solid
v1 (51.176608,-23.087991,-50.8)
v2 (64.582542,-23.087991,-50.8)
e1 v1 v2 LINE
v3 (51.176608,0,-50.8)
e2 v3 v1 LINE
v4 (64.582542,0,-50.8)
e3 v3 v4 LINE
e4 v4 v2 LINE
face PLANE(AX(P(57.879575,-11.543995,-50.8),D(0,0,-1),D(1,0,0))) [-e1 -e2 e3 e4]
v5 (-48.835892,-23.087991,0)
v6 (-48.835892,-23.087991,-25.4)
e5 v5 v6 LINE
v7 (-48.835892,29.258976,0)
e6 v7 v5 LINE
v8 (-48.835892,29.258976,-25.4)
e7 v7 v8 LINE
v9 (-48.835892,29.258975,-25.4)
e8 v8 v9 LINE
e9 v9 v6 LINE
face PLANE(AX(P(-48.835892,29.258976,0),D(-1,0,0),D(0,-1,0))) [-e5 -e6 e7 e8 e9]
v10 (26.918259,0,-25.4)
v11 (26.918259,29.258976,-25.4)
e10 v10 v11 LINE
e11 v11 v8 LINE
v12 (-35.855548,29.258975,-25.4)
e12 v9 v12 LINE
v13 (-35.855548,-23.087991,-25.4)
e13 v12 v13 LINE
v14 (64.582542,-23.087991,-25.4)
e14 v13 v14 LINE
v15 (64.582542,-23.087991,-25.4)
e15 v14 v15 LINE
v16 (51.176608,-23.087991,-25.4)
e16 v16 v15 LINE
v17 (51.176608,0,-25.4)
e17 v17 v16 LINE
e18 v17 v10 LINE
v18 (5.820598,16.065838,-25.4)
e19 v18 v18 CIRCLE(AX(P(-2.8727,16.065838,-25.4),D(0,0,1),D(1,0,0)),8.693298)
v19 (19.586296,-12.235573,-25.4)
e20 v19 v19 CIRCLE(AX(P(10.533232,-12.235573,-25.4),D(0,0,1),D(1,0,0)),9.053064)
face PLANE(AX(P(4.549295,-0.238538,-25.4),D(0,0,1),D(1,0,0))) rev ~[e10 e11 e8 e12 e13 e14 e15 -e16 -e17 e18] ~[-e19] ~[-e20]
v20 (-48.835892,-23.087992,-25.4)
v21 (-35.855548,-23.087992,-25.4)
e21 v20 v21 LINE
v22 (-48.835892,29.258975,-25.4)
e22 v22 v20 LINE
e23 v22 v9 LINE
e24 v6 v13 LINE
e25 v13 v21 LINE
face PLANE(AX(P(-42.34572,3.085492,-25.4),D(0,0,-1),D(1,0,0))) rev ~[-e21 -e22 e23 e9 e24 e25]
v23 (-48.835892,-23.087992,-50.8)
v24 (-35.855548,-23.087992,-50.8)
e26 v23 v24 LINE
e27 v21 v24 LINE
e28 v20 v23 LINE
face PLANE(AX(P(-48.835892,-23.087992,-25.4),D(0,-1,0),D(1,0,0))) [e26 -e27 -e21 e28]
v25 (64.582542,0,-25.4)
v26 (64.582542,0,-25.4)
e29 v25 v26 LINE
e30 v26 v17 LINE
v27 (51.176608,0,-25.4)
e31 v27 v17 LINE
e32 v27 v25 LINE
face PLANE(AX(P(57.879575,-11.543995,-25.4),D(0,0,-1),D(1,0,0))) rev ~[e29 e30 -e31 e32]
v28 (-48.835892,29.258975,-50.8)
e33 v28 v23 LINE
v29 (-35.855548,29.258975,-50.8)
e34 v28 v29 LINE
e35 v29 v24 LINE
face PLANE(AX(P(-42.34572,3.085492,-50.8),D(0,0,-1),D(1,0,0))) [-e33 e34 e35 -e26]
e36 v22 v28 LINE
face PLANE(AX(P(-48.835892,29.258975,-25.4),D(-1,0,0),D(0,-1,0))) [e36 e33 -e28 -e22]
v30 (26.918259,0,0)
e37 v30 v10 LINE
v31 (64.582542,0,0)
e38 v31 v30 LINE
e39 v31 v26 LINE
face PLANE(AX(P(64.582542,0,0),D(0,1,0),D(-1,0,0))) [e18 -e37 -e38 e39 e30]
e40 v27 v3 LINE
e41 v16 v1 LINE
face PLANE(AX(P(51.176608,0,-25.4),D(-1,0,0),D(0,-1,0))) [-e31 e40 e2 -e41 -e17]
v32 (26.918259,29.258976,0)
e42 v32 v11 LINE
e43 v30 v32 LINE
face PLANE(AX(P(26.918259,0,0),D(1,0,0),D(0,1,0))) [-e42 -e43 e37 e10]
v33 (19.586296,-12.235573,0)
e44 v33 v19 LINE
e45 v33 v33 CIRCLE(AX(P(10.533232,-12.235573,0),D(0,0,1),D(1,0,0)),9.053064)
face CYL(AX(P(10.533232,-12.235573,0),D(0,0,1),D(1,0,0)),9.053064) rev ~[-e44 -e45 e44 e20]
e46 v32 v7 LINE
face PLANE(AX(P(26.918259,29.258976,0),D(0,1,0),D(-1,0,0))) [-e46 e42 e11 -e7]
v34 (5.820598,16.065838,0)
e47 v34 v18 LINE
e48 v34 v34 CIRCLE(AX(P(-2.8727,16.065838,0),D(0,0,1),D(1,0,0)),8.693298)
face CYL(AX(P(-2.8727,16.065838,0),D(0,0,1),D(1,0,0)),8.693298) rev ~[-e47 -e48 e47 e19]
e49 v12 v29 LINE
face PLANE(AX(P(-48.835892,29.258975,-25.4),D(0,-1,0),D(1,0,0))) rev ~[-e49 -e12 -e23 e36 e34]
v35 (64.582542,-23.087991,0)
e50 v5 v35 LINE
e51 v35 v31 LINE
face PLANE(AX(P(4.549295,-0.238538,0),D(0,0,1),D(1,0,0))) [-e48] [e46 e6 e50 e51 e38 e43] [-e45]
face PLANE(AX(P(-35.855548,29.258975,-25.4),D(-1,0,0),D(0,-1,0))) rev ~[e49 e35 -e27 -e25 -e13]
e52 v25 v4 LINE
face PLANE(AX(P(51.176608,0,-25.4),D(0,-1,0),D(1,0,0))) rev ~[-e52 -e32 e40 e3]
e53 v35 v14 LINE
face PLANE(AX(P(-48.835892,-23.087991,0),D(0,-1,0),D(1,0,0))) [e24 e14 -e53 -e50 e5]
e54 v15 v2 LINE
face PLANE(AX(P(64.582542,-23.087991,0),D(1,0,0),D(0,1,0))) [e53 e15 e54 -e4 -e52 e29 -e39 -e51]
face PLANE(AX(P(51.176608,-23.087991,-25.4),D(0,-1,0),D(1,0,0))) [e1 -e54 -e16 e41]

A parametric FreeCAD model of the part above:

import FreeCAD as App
import Part
import Sketcher
from FreeCAD import Vector
Q = App.Units.Quantity


def add_polygon(sketch, points):
    """Adds a closed chain of lines whose ends are joined by coincident constraints."""
    first, n = sketch.GeometryCount, len(points)
    for a, b in zip(points, points[1:] + points[:1]):
        sketch.addGeometry(Part.LineSegment(App.Vector(*a, 0), App.Vector(*b, 0)), False)
    for i in range(n):
        sketch.addConstraint(Sketcher.Constraint("Coincident", first + i, 2, first + (i + 1) % n, 1))

doc = App.newDocument("Part")
body = doc.addObject("PartDesign::Body", "Body")

# Sketch on XY plane
sketch1 = body.newObject("Sketcher::SketchObject", "Sketch")
sketch1.AttachmentSupport = (doc.getObject("XY_Plane"), [""])
sketch1.MapMode = "FlatFace"
add_polygon(sketch1, [(27, 29), (-49, 29), (-49, -23), (65, -23), (65, 0), (27, 0)])  # lines 0-5
sketch1.addGeometry(Part.Circle(Vector(11, -12, 0), Vector(0, 0, 1), 9), False)  # 6
sketch1.addGeometry(Part.Circle(Vector(-3, 16, 0), Vector(0, 0, 1), 9), False)  # 7
sketch1.addConstraint(Sketcher.Constraint("Horizontal", 0))
sketch1.addConstraint(Sketcher.Constraint("Vertical", 1))
sketch1.addConstraint(Sketcher.Constraint("Horizontal", 2))
sketch1.addConstraint(Sketcher.Constraint("Vertical", 3))
sketch1.addConstraint(Sketcher.Constraint("Horizontal", 4))
sketch1.addConstraint(Sketcher.Constraint("Vertical", 5))
sketch1.addConstraint(Sketcher.Constraint("PointOnObject", 3, 2, -1))
sketch1.addConstraint(Sketcher.Constraint("Diameter", 6, Q("18.106128 mm")))
sketch1.addConstraint(Sketcher.Constraint("Diameter", 7, Q("17.386596 mm")))
sketch1.addConstraint(Sketcher.Constraint("DistanceX", 0, 2, 0, 1, Q("75.754151 mm")))
sketch1.addConstraint(Sketcher.Constraint("DistanceY", 3, 1, 3, 2, Q("23.087991 mm")))
sketch1.addConstraint(Sketcher.Constraint("DistanceX", 7, 3, -1, 1, Q("2.8727 mm")))
sketch1.addConstraint(Sketcher.Constraint("DistanceX", 2, 1, 2, 2, Q("113.418434 mm")))
sketch1.addConstraint(Sketcher.Constraint("DistanceY", 1, 2, 1, 1, Q("52.346967 mm")))
sketch1.addConstraint(Sketcher.Constraint("DistanceX", -1, 1, 4, 2, Q("26.918259 mm")))
sketch1.addConstraint(Sketcher.Constraint("DistanceY", 6, 3, 7, 3, Q("28.301411 mm")))
sketch1.addConstraint(Sketcher.Constraint("DistanceY", 7, 3, 0, 2, Q("13.193138 mm")))
sketch1.addConstraint(Sketcher.Constraint("DistanceX", 6, 3, 2, 2, Q("54.04931 mm")))
pad1 = body.newObject("PartDesign::Pad", "Pad")
pad1.Profile = sketch1
pad1.Length = Q("1 in")
pad1.Reversed = True

# Sketch on XY plane
sketch2 = body.newObject("Sketcher::SketchObject", "Sketch001")
sketch2.AttachmentSupport = (doc.getObject("XY_Plane"), [""])
sketch2.MapMode = "FlatFace"
sketch2.AttachmentOffset = App.Placement(Vector(0, 0, -1 * 25.4), App.Rotation())
add_polygon(sketch2, [(-49, -23), (-49, 29), (-36, 29), (-36, -23)])  # lines 0-3
add_polygon(sketch2, [(51, -23), (51, 0), (65, 0), (65, -23)])  # lines 4-7
sketch2.addConstraint(Sketcher.Constraint("Vertical", 0))
sketch2.addConstraint(Sketcher.Constraint("Horizontal", 1))
sketch2.addConstraint(Sketcher.Constraint("Vertical", 2))
sketch2.addConstraint(Sketcher.Constraint("Horizontal", 3))
sketch2.addConstraint(Sketcher.Constraint("Vertical", 4))
sketch2.addConstraint(Sketcher.Constraint("Horizontal", 5))
sketch2.addConstraint(Sketcher.Constraint("Vertical", 6))
sketch2.addConstraint(Sketcher.Constraint("Horizontal", 7))
sketch2.addConstraint(Sketcher.Constraint("PointOnObject", 4, 2, -1))
sketch2.addConstraint(Sketcher.Constraint("Horizontal", 3, 2, 6, 2))
sketch2.addConstraint(Sketcher.Constraint("DistanceX", 3, 2, 4, 2, Q("3.9375 in")))
sketch2.addConstraint(Sketcher.Constraint("DistanceY", 4, 1, 4, 2, Q("23.087991 mm")))
sketch2.addConstraint(Sketcher.Constraint("DistanceX", 1, 1, 1, 2, Q("12.980345 mm")))
sketch2.addConstraint(Sketcher.Constraint("DistanceX", 5, 1, 5, 2, Q("13.405934 mm")))
sketch2.addConstraint(Sketcher.Constraint("DistanceY", 0, 1, 0, 2, Q("52.346967 mm")))
sketch2.addConstraint(Sketcher.Constraint("DistanceX", -1, 1, 4, 2, Q("51.176608 mm")))
pad2 = body.newObject("PartDesign::Pad", "Pad001")
pad2.Profile = sketch2
pad2.Length = Q("1 in")
pad2.Reversed = True

doc.recompute()
